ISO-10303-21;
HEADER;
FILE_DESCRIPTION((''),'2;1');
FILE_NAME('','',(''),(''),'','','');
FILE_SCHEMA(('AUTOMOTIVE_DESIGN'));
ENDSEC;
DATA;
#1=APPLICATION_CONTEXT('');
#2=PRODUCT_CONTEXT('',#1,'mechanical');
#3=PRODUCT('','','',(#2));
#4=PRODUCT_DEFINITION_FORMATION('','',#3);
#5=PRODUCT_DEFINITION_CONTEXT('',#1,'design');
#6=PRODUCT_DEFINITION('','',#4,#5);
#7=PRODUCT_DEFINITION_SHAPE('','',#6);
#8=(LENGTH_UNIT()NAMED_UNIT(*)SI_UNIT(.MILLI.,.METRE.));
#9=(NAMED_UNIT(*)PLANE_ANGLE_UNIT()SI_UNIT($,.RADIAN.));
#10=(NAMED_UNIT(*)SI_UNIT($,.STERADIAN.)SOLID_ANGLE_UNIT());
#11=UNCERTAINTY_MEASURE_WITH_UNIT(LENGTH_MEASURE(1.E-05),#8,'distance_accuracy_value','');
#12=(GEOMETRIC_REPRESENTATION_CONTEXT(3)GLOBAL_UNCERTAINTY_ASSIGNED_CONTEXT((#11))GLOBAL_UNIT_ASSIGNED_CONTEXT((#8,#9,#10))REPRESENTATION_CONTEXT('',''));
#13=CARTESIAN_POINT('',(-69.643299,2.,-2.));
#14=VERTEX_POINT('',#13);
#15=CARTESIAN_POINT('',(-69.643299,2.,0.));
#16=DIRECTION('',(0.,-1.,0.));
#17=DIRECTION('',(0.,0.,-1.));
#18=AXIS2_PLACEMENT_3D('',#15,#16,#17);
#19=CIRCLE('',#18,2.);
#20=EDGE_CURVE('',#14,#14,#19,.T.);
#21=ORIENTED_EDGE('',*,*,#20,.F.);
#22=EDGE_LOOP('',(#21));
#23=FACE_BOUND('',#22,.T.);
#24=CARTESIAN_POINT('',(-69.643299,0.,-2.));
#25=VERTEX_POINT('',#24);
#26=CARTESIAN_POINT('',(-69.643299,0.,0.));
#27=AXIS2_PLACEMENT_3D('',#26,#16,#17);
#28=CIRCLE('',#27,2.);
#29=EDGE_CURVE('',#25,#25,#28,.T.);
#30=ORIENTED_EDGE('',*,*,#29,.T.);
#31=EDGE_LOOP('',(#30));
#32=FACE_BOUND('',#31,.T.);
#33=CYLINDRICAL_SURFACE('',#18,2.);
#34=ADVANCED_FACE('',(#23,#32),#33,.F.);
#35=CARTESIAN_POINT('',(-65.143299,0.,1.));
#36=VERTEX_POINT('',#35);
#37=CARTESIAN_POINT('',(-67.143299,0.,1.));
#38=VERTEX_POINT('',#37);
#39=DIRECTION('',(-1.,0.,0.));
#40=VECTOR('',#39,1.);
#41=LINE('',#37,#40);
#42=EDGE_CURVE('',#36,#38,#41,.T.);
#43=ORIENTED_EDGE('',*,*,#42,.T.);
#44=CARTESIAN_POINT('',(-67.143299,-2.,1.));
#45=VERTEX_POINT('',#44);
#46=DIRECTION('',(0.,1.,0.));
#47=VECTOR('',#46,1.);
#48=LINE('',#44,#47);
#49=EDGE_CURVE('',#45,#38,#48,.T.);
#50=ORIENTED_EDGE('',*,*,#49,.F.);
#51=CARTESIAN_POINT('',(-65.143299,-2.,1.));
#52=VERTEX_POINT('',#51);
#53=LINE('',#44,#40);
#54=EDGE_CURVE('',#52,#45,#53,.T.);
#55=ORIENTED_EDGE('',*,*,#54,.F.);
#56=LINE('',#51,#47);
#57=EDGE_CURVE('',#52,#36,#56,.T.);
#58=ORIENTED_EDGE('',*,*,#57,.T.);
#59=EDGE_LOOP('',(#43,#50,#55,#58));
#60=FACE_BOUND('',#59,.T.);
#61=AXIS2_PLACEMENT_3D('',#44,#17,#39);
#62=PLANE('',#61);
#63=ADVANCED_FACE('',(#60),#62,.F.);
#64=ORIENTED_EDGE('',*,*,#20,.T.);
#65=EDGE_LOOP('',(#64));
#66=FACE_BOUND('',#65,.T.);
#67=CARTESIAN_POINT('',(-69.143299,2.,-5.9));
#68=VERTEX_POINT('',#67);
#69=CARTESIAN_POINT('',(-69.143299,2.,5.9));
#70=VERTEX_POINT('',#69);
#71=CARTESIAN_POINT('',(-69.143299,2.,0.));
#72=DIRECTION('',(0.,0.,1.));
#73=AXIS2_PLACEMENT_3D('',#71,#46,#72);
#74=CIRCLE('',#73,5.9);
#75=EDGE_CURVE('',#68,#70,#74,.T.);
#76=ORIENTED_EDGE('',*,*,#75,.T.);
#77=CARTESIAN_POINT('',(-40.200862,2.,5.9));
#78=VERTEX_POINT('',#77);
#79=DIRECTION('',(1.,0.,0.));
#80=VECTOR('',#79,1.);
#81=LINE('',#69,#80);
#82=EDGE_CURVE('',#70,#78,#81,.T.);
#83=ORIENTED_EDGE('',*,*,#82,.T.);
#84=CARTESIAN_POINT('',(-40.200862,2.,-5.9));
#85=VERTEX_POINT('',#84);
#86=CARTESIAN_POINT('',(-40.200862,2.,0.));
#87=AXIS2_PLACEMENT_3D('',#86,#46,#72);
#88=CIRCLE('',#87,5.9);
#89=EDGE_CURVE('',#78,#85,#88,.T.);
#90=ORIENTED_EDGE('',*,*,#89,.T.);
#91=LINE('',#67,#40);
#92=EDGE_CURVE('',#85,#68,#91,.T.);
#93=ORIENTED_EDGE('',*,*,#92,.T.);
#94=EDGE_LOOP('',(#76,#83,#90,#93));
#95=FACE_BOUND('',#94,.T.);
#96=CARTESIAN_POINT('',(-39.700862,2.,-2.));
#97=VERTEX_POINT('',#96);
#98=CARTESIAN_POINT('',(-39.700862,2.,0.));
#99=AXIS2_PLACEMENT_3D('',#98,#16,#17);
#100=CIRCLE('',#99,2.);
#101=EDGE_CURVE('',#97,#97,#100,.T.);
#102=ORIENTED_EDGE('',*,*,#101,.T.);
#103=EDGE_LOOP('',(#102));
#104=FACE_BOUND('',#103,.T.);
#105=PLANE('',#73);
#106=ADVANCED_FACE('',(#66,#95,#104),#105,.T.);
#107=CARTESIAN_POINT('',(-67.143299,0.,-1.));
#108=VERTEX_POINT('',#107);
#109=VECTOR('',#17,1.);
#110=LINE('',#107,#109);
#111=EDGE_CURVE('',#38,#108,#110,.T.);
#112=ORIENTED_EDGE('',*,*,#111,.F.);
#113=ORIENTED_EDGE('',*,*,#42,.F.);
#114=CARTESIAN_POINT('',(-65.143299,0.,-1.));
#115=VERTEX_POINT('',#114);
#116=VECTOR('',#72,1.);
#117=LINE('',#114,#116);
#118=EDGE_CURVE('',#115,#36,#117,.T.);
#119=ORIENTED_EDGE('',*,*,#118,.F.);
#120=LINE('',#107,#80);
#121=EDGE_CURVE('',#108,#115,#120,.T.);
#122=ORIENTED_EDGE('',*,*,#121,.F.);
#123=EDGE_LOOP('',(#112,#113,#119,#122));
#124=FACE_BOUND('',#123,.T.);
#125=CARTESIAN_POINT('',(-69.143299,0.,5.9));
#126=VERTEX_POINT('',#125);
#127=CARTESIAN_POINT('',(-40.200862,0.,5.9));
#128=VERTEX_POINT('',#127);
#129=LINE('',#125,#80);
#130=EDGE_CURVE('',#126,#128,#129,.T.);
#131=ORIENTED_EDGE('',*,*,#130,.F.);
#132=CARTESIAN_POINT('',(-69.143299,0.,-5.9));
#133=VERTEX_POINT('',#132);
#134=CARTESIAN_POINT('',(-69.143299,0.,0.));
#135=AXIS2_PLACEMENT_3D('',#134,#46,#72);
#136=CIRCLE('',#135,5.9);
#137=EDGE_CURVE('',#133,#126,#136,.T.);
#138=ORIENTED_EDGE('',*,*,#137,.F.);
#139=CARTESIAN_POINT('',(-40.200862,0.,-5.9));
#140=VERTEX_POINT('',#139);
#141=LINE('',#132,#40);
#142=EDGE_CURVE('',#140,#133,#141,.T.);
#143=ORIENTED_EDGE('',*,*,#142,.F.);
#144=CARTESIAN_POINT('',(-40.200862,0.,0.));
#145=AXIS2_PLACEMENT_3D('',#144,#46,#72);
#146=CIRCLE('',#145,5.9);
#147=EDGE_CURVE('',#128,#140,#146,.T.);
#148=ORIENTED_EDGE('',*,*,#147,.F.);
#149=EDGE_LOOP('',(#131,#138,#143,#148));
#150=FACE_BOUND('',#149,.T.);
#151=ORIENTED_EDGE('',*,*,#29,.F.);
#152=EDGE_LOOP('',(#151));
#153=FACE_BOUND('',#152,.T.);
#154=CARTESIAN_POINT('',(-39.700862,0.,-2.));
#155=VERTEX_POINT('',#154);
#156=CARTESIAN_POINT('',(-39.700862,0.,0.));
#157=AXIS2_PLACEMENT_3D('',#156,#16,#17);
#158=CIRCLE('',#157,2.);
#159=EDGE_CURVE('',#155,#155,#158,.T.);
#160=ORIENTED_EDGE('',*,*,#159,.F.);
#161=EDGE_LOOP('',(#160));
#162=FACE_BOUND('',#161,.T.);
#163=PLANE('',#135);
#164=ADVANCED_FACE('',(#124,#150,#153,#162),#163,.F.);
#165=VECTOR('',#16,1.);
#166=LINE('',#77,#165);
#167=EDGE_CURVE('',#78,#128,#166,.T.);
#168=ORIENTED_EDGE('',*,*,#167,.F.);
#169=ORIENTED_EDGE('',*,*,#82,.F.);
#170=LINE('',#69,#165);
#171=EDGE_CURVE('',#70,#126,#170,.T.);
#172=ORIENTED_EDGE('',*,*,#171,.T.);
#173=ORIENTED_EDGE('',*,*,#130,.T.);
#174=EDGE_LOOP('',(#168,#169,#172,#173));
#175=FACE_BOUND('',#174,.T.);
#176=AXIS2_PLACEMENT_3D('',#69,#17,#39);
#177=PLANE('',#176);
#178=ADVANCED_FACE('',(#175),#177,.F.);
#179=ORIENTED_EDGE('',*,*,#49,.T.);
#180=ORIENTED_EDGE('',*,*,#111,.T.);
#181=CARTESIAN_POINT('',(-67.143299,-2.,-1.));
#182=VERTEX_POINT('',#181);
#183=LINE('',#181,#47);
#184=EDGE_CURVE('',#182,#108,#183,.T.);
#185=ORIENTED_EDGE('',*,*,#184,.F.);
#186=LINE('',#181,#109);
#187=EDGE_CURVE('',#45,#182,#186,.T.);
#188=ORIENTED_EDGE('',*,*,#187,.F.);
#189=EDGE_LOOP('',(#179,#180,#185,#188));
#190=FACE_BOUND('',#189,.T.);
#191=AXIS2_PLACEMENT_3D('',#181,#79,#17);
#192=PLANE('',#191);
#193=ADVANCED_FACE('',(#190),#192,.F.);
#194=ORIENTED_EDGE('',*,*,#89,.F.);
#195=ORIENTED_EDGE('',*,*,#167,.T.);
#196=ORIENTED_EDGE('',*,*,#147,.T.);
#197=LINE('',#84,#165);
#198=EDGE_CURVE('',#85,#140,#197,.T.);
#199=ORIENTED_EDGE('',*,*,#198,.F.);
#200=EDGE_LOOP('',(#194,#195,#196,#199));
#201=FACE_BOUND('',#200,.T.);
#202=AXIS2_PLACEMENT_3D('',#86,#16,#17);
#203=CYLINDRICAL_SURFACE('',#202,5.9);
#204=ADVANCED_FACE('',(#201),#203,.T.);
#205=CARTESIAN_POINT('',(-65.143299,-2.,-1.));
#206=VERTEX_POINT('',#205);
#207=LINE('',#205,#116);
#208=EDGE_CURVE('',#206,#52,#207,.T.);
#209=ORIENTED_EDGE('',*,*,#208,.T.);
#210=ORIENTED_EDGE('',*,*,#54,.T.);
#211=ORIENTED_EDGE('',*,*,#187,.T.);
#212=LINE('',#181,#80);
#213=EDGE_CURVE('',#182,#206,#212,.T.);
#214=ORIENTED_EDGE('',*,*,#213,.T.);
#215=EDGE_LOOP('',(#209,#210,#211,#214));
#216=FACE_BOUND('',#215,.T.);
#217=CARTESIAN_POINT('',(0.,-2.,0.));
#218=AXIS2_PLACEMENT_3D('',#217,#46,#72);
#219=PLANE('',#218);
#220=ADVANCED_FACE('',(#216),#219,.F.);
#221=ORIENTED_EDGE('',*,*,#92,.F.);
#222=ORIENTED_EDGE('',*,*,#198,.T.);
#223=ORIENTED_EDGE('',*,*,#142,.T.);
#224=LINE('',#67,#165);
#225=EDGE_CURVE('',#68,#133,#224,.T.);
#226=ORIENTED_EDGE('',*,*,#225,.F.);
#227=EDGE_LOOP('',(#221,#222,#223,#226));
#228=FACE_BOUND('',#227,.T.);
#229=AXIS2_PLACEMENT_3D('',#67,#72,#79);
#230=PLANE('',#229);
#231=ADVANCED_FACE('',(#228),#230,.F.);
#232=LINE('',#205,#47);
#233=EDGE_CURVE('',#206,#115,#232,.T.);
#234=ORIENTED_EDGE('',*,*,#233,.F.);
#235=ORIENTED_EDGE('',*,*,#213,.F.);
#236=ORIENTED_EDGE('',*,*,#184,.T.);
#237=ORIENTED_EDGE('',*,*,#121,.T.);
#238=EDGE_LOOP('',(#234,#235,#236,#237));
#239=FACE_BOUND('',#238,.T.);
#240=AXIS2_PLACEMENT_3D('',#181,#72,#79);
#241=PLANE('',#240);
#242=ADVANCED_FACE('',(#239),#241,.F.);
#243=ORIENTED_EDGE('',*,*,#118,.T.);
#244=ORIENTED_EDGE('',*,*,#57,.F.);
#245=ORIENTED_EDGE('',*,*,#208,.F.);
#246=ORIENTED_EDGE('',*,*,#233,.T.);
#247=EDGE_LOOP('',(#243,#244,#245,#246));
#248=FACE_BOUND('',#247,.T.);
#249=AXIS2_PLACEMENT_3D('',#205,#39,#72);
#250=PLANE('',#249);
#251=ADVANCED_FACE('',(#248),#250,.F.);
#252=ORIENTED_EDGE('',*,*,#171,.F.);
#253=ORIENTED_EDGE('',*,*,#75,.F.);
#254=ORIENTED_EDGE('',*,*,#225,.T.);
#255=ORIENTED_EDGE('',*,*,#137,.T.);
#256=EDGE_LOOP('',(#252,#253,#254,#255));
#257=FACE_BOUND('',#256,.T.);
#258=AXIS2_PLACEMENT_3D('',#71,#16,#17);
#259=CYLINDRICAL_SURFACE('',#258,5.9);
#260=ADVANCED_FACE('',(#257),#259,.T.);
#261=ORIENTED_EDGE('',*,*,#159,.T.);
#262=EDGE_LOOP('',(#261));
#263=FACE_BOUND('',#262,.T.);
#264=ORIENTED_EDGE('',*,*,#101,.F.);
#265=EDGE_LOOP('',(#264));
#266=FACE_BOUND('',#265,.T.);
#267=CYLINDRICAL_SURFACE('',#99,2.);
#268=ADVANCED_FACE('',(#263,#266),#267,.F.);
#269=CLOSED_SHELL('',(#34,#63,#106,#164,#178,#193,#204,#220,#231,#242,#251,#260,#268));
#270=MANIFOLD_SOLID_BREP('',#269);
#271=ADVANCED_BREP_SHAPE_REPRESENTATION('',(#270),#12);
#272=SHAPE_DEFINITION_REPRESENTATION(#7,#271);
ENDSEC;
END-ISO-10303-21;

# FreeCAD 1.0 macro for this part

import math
import FreeCAD as App
import Part
import Sketcher
from FreeCAD import Vector
Q = App.Units.Quantity

doc = App.newDocument("Part")
body = doc.addObject("PartDesign::Body", "Body")

# Sketch on XZ plane
sketch1 = body.newObject("Sketcher::SketchObject", "Sketch")
sketch1.AttachmentSupport = (doc.getObject("XZ_Plane"), [""])
sketch1.MapMode = "FlatFace"
sketch1.addGeometry([
    Part.LineSegment(Vector(-40, -6, 0), Vector(-69, -6, 0)),
    Part.ArcOfCircle(Part.Circle(Vector(-69, 0, 0), Vector(0, 0, 1), 6), math.radians(90), math.radians(270)),
    Part.LineSegment(Vector(-69, 6, 0), Vector(-40, 6, 0)),
    Part.ArcOfCircle(Part.Circle(Vector(-40, 0, 0), Vector(0, 0, 1), 6), math.radians(-90), math.radians(90)),
], False)
sketch1.addConstraint([
    Sketcher.Constraint("Tangent", 0, 2, 1, 2),
    Sketcher.Constraint("Tangent", 1, 1, 2, 1),
    Sketcher.Constraint("Tangent", 2, 2, 3, 2),
    Sketcher.Constraint("Tangent", 3, 1, 0, 1),
    Sketcher.Constraint("Horizontal", 0),
    Sketcher.Constraint("Horizontal", 2),
    Sketcher.Constraint("PointOnObject", 1, 3, -1),
    Sketcher.Constraint("Radius", 1, Q("5.9 mm")),
    Sketcher.Constraint("DistanceX", 1, 3, -1, 1, Q("69.143299 mm")),
    Sketcher.Constraint("DistanceX", 0, 2, 0, 1, Q("28.942437 mm")),
])
pad1 = body.newObject("PartDesign::Pad", "Pad")
pad1.Profile = sketch1
pad1.Length = 2
pad1.Reversed = True

# Sketch on XZ plane
sketch2 = body.newObject("Sketcher::SketchObject", "Sketch001")
sketch2.AttachmentSupport = (doc.getObject("XZ_Plane"), [""])
sketch2.MapMode = "FlatFace"
sketch2.addGeometry([
    Part.Circle(Vector(-39.7, 0, 0), Vector(0, 0, 1), 2),
    Part.Circle(Vector(-69.6, 0, 0), Vector(0, 0, 1), 2),
], False)
sketch2.addConstraint([
    Sketcher.Constraint("Equal", 0, 1),
    Sketcher.Constraint("PointOnObject", 0, 3, -1),
    Sketcher.Constraint("PointOnObject", 1, 3, -1),
    Sketcher.Constraint("Diameter", 0, Q("4 mm")),
    Sketcher.Constraint("DistanceX", 1, 3, -1, 1, Q("69.643299 mm")),
    Sketcher.Constraint("DistanceX", 0, 3, -1, 1, Q("39.700862 mm")),
])
pocket1 = body.newObject("PartDesign::Pocket", "Pocket")
pocket1.Profile = sketch2
pocket1.Type = "ThroughAll"

# Sketch on XZ plane
sketch3 = body.newObject("Sketcher::SketchObject", "Sketch002")
sketch3.AttachmentSupport = (doc.getObject("XZ_Plane"), [""])
sketch3.MapMode = "FlatFace"
sketch3.addGeometry([
    Part.LineSegment(Vector(-67.1, 1, 0), Vector(-67.1, -1, 0)),
    Part.LineSegment(Vector(-67.1, -1, 0), Vector(-65.1, -1, 0)),
    Part.LineSegment(Vector(-65.1, -1, 0), Vector(-65.1, 1, 0)),
    Part.LineSegment(Vector(-65.1, 1, 0), Vector(-67.1, 1, 0)),
], False)
sketch3.addConstraint([
    Sketcher.Constraint("Coincident", 0, 2, 1, 1),
    Sketcher.Constraint("Coincident", 1, 2, 2, 1),
    Sketcher.Constraint("Coincident", 2, 2, 3, 1),
    Sketcher.Constraint("Coincident", 3, 2, 0, 1),
    Sketcher.Constraint("Vertical", 0),
    Sketcher.Constraint("Horizontal", 1),
    Sketcher.Constraint("Vertical", 2),
    Sketcher.Constraint("Horizontal", 3),
    Sketcher.Constraint("Equal", 3, 0),
    Sketcher.Constraint("DistanceX", 1, 1, 1, 2, Q("2 mm")),
    Sketcher.Constraint("DistanceY", 0, 2, -1, 1, Q("1 mm")),
    Sketcher.Constraint("DistanceX", 0, 2, -1, 1, Q("67.143299 mm")),
])
pad2 = body.newObject("PartDesign::Pad", "Pad001")
pad2.Profile = sketch3
pad2.Length = 2

doc.recompute()
